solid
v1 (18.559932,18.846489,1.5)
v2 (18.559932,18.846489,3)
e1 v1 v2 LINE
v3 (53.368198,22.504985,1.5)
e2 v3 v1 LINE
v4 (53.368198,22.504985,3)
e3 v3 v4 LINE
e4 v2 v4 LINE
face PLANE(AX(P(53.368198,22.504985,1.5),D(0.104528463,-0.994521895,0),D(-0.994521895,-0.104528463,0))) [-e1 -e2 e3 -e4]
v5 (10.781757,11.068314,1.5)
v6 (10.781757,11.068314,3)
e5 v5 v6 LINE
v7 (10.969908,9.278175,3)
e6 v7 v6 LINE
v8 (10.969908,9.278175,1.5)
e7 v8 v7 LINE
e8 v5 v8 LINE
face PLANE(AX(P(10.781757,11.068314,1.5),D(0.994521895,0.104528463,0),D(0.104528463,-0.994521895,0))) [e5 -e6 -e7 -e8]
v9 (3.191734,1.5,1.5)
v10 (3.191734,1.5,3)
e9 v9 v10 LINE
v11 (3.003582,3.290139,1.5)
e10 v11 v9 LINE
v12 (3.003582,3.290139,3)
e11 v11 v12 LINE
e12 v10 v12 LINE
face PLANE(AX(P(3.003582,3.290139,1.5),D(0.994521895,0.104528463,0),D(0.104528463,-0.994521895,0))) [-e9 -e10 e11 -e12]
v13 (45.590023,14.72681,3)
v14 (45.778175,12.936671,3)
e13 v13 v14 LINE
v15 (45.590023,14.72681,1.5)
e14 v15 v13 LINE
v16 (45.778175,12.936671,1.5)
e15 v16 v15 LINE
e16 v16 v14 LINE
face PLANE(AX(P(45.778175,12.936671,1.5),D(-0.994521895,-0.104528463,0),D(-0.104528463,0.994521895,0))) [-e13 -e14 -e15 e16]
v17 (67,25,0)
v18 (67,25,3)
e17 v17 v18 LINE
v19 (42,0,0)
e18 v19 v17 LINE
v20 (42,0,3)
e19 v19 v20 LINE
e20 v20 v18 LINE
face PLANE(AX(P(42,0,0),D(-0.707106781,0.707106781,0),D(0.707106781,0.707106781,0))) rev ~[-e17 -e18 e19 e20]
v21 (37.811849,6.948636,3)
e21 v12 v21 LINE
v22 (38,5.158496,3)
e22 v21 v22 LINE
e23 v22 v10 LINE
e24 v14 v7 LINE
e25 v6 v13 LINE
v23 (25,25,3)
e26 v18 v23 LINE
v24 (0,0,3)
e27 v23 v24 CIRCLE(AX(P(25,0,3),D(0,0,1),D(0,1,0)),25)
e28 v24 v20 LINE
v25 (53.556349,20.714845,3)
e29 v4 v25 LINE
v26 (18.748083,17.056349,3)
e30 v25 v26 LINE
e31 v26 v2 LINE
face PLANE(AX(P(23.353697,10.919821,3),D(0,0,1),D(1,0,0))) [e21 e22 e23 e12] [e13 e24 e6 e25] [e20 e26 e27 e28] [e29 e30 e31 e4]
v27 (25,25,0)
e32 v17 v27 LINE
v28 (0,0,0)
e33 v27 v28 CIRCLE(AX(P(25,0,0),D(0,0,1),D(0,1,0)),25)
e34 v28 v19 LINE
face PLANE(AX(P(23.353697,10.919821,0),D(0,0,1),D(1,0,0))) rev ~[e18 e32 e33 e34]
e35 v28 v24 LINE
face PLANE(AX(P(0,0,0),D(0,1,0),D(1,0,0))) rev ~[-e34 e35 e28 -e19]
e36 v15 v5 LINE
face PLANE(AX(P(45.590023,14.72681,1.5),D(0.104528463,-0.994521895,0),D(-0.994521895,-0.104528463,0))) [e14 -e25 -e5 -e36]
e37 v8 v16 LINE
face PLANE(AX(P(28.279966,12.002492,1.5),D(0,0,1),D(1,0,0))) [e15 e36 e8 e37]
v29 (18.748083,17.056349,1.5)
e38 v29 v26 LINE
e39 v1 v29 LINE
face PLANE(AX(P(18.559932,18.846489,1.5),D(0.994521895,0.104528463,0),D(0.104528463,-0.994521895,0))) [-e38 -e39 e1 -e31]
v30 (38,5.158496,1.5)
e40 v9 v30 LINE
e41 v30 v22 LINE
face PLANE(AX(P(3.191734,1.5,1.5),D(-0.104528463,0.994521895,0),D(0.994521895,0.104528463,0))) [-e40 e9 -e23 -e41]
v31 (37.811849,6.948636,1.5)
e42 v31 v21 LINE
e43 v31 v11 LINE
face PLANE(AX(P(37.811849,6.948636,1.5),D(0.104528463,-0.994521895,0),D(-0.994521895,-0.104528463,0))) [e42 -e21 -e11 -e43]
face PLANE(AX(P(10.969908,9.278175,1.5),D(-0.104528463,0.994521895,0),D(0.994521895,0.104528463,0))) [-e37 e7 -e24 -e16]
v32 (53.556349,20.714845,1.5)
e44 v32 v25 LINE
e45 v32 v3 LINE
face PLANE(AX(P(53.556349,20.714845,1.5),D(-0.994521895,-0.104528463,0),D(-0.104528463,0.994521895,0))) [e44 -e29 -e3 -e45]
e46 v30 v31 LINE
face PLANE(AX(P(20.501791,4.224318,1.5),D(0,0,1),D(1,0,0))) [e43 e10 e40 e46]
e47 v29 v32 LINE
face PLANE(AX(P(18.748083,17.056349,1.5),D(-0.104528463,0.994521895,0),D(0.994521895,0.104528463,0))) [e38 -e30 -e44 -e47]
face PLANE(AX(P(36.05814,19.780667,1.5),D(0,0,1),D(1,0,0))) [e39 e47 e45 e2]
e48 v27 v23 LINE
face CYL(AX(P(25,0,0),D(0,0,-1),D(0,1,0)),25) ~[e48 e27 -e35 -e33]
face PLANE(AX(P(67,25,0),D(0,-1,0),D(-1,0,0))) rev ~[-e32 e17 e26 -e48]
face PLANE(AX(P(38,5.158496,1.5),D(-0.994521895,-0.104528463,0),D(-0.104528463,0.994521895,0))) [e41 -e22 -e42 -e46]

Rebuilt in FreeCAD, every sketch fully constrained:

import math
import FreeCAD as App
import Part
import Sketcher

V = App.Vector
Q = App.Units.Quantity

doc = App.newDocument("Part")
body = doc.addObject("PartDesign::Body", "Body")

# Sketch on XY plane
sketch1 = doc.addObject("Sketcher::SketchObject", "Sketch")
body.addObject(sketch1)
sketch1.AttachmentSupport = (doc.XY_Plane, [""])
sketch1.MapMode = "FlatFace"
sketch1.addGeometry(Part.ArcOfCircle(Part.Circle(V(25, 0, 0), V(0, 0, 1), 25), math.radians(90), math.radians(180)), False)
sketch1.addGeometry(Part.LineSegment(V(0, 0, 0), V(42, 0, 0)), False)
sketch1.addGeometry(Part.LineSegment(V(42, 0, 0), V(67, 25, 0)), False)
sketch1.addGeometry(Part.LineSegment(V(67, 25, 0), V(25, 25, 0)), False)
sketch1.addConstraint(Sketcher.Constraint("Coincident", 0, 2, 1, 1))
sketch1.addConstraint(Sketcher.Constraint("Coincident", 1, 2, 2, 1))
sketch1.addConstraint(Sketcher.Constraint("Coincident", 2, 2, 3, 1))
sketch1.addConstraint(Sketcher.Constraint("Tangent", 3, 2, 0, 1))
sketch1.addConstraint(Sketcher.Constraint("Horizontal", 1))
sketch1.addConstraint(Sketcher.Constraint("Horizontal", 3))
sketch1.addConstraint(Sketcher.Constraint("Coincident", 0, 2, -1, 1))
sketch1.addConstraint(Sketcher.Constraint("PointOnObject", 0, 3, -1))
sketch1.addConstraint(Sketcher.Constraint("Equal", 1, 3))
sketch1.addConstraint(Sketcher.Constraint("Radius", 0, Q("25 mm")))
sketch1.addConstraint(Sketcher.Constraint("DistanceX", 1, 1, 1, 2, Q("42 mm")))
pad1 = doc.addObject("PartDesign::Pad", "Pad")
body.addObject(pad1)
pad1.Profile = sketch1
pad1.Length = 3

# Sketch on XY plane
sketch2 = doc.addObject("Sketcher::SketchObject", "Sketch001")
body.addObject(sketch2)
sketch2.AttachmentSupport = (doc.XY_Plane, [""])
sketch2.MapMode = "FlatFace"
sketch2.AttachmentOffset = App.Placement(V(0, 0, 1.5), App.Rotation())
sketch2.addGeometry(Part.LineSegment(V(3.003582, 3.290139, 0), V(3.191734, 1.5, 0)), False)
sketch2.addGeometry(Part.LineSegment(V(3.191734, 1.5, 0), V(38, 5.158496, 0)), False)
sketch2.addGeometry(Part.LineSegment(V(38, 5.158496, 0), V(37.811849, 6.948636, 0)), False)
sketch2.addGeometry(Part.LineSegment(V(37.811849, 6.948636, 0), V(3.003582, 3.290139, 0)), False)
sketch2.addGeometry(Part.LineSegment(V(10.781757, 11.068314, 0), V(10.969908, 9.278175, 0)), False)
sketch2.addGeometry(Part.LineSegment(V(10.969908, 9.278175, 0), V(45.778175, 12.936671, 0)), False)
sketch2.addGeometry(Part.LineSegment(V(45.778175, 12.936671, 0), V(45.590023, 14.72681, 0)), False)
sketch2.addGeometry(Part.LineSegment(V(45.590023, 14.72681, 0), V(10.781757, 11.068314, 0)), False)
sketch2.addGeometry(Part.LineSegment(V(18.559932, 18.846489, 0), V(18.748083, 17.056349, 0)), False)
sketch2.addGeometry(Part.LineSegment(V(18.748083, 17.056349, 0), V(53.556349, 20.714845, 0)), False)
sketch2.addGeometry(Part.LineSegment(V(53.556349, 20.714845, 0), V(53.368198, 22.504985, 0)), False)
sketch2.addGeometry(Part.LineSegment(V(53.368198, 22.504985, 0), V(18.559932, 18.846489, 0)), False)
sketch2.addConstraint(Sketcher.Constraint("Coincident", 0, 2, 1, 1))
sketch2.addConstraint(Sketcher.Constraint("Coincident", 1, 2, 2, 1))
sketch2.addConstraint(Sketcher.Constraint("Coincident", 2, 2, 3, 1))
sketch2.addConstraint(Sketcher.Constraint("Coincident", 3, 2, 0, 1))
sketch2.addConstraint(Sketcher.Constraint("Coincident", 4, 2, 5, 1))
sketch2.addConstraint(Sketcher.Constraint("Coincident", 5, 2, 6, 1))
sketch2.addConstraint(Sketcher.Constraint("Coincident", 6, 2, 7, 1))
sketch2.addConstraint(Sketcher.Constraint("Coincident", 7, 2, 4, 1))
sketch2.addConstraint(Sketcher.Constraint("Coincident", 8, 2, 9, 1))
sketch2.addConstraint(Sketcher.Constraint("Coincident", 9, 2, 10, 1))
sketch2.addConstraint(Sketcher.Constraint("Coincident", 10, 2, 11, 1))
sketch2.addConstraint(Sketcher.Constraint("Coincident", 11, 2, 8, 1))
sketch2.addConstraint(Sketcher.Constraint("Perpendicular", 0, 1))
sketch2.addConstraint(Sketcher.Constraint("Perpendicular", 1, 2))
sketch2.addConstraint(Sketcher.Constraint("Perpendicular", 2, 3))
sketch2.addConstraint(Sketcher.Constraint("Perpendicular", 3, 4))
sketch2.addConstraint(Sketcher.Constraint("Perpendicular", 4, 5))
sketch2.addConstraint(Sketcher.Constraint("Perpendicular", 5, 6))
sketch2.addConstraint(Sketcher.Constraint("Perpendicular", 6, 7))
sketch2.addConstraint(Sketcher.Constraint("Perpendicular", 7, 8))
sketch2.addConstraint(Sketcher.Constraint("Perpendicular", 8, 9))
sketch2.addConstraint(Sketcher.Constraint("Perpendicular", 9, 10))
sketch2.addConstraint(Sketcher.Constraint("Perpendicular", 10, 11))
sketch2.addConstraint(Sketcher.Constraint("Equal", 2, 4))
sketch2.addConstraint(Sketcher.Constraint("Equal", 3, 5))
sketch2.addConstraint(Sketcher.Constraint("Equal", 6, 8))
sketch2.addConstraint(Sketcher.Constraint("Equal", 7, 9))
sketch2.addConstraint(Sketcher.Constraint("Angle", 0, Q("-84 deg")))
sketch2.addConstraint(Sketcher.Constraint("Distance", 1, Q("35 mm")))
sketch2.addConstraint(Sketcher.Constraint("DistanceX", -1, 1, 1, 2, Q("38 mm")))
sketch2.addConstraint(Sketcher.Constraint("Distance", 0, Q("1.8 mm")))
sketch2.addConstraint(Sketcher.Constraint("DistanceY", -1, 1, 0, 2, Q("1.5 mm")))
sketch2.addConstraint(Sketcher.Constraint("DistanceX", 3, 2, 8, 2, Q("15.7445 mm")))
sketch2.addConstraint(Sketcher.Constraint("DistanceX", -1, 1, 4, 2, Q("10.969908 mm")))
sketch2.addConstraint(Sketcher.Constraint("DistanceY", -1, 1, 5, 2, Q("12.936671 mm")))
sketch2.addConstraint(Sketcher.Constraint("DistanceY", -1, 1, 8, 2, Q("17.056349 mm")))
pocket1 = doc.addObject("PartDesign::Pocket", "Pocket")
body.addObject(pocket1)
pocket1.Profile = sketch2
pocket1.Length = 158.5
pocket1.Reversed = True

doc.recompute()
